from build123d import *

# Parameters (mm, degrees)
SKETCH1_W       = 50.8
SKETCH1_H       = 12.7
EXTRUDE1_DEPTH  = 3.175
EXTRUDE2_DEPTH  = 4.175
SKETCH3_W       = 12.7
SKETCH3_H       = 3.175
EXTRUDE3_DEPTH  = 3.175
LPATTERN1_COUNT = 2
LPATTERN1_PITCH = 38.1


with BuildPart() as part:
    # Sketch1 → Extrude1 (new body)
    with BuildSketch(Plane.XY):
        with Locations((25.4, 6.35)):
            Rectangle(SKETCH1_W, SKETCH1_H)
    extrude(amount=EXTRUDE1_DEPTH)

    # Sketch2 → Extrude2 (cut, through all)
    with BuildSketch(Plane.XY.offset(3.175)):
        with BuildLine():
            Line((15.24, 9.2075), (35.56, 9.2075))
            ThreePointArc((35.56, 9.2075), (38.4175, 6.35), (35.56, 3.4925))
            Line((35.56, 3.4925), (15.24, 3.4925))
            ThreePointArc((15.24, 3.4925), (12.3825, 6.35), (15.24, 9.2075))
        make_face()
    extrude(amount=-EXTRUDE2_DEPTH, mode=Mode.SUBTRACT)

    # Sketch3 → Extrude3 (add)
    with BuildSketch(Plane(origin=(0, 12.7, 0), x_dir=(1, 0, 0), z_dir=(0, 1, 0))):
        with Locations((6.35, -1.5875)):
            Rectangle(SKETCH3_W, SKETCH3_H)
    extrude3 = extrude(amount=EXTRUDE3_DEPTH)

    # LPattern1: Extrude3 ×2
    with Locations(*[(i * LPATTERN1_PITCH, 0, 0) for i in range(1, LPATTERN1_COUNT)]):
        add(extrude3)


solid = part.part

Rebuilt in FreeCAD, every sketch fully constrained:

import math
import FreeCAD as App
import Part
import Sketcher

V = App.Vector
Q = App.Units.Quantity


def add_polygon(sketch, points):
    """Adds a closed chain of lines whose ends are joined by coincident constraints."""
    first, n = sketch.GeometryCount, len(points)
    for a, b in zip(points, points[1:] + points[:1]):
        sketch.addGeometry(Part.LineSegment(App.Vector(*a, 0), App.Vector(*b, 0)), False)
    for i in range(n):
        sketch.addConstraint(Sketcher.Constraint("Coincident", first + i, 2, first + (i + 1) % n, 1))

doc = App.newDocument("Part")
body = doc.addObject("PartDesign::Body", "Body")

sketch1 = body.newObject("Sketcher::SketchObject", "Sketch")
sketch1.AttachmentSupport = (doc.getObject("XY_Plane"), [""])
sketch1.MapMode = "FlatFace"
add_polygon(sketch1, [(0, 12.7), (0, 0), (50.8, 0), (50.8, 12.7)])
sketch1.addConstraint(Sketcher.Constraint("Vertical", 0))
sketch1.addConstraint(Sketcher.Constraint("Horizontal", 1))
sketch1.addConstraint(Sketcher.Constraint("Vertical", 2))
sketch1.addConstraint(Sketcher.Constraint("Horizontal", 3))
sketch1.addConstraint(Sketcher.Constraint("Coincident", 0, 2, -1, 1))
sketch1.addConstraint(Sketcher.Constraint("DistanceX", 1, 1, 1, 2, Q("2 in")))
sketch1.addConstraint(Sketcher.Constraint("DistanceY", 0, 2, 0, 1, Q("0.5 in")))
pad1 = body.newObject("PartDesign::Pad", "Pad")
pad1.Profile = sketch1
pad1.Length = Q("0.125 in")

sketch2 = body.newObject("Sketcher::SketchObject", "Sketch001")
sketch2.AttachmentSupport = (doc.getObject("XY_Plane"), [""])
sketch2.MapMode = "FlatFace"
sketch2.AttachmentOffset = App.Placement(V(0, 0, 0.125 * 25.4), App.Rotation())
sketch2.addGeometry(Part.LineSegment(V(35.56, 9.2075, 0), V(15.24, 9.2075, 0)), False)
sketch2.addGeometry(Part.ArcOfCircle(Part.Circle(V(15.24, 6.35, 0), V(0, 0, 1), 2.8575), math.radians(90), math.radians(270)), False)
sketch2.addGeometry(Part.LineSegment(V(15.24, 3.4925, 0), V(35.56, 3.4925, 0)), False)
sketch2.addGeometry(Part.ArcOfCircle(Part.Circle(V(35.56, 6.35, 0), V(0, 0, 1), 2.8575), math.radians(-90), math.radians(90)), False)
sketch2.addConstraint(Sketcher.Constraint("Tangent", 0, 2, 1, 1))
sketch2.addConstraint(Sketcher.Constraint("Tangent", 1, 2, 2, 1))
sketch2.addConstraint(Sketcher.Constraint("Tangent", 2, 2, 3, 1))
sketch2.addConstraint(Sketcher.Constraint("Tangent", 3, 2, 0, 1))
sketch2.addConstraint(Sketcher.Constraint("Horizontal", 0))
sketch2.addConstraint(Sketcher.Constraint("Horizontal", 2))
sketch2.addConstraint(Sketcher.Constraint("DistanceX", 0, 2, 0, 1, Q("0.8 in")))
sketch2.addConstraint(Sketcher.Constraint("DistanceX", -1, 1, 1, 3, Q("0.6 in")))
sketch2.addConstraint(Sketcher.Constraint("Radius", 1, Q("0.1125 in")))
sketch2.addConstraint(Sketcher.Constraint("DistanceY", -1, 1, 1, 3, Q("0.25 in")))
pocket1 = body.newObject("PartDesign::Pocket", "Pocket")
pocket1.Profile = sketch2
pocket1.Type = "ThroughAll"

sketch3 = body.newObject("Sketcher::SketchObject", "Sketch002")
sketch3.AttachmentSupport = (doc.getObject("XZ_Plane"), [""])
sketch3.MapMode = "FlatFace"
sketch3.AttachmentOffset = App.Placement(V(0, 0, -0.5 * 25.4), App.Rotation())
add_polygon(sketch3, [(0, 0), (0, 3.175), (12.7, 3.175), (12.7, 0)])
sketch3.addConstraint(Sketcher.Constraint("Vertical", 0))
sketch3.addConstraint(Sketcher.Constraint("Horizontal", 1))
sketch3.addConstraint(Sketcher.Constraint("Vertical", 2))
sketch3.addConstraint(Sketcher.Constraint("Horizontal", 3))
sketch3.addConstraint(Sketcher.Constraint("Coincident", 3, 2, -1, 1))
sketch3.addConstraint(Sketcher.Constraint("DistanceX", 1, 1, 1, 2, Q("0.5 in")))
sketch3.addConstraint(Sketcher.Constraint("DistanceY", 0, 1, 0, 2, Q("0.125 in")))
pad2 = body.newObject("PartDesign::Pad", "Pad001")
pad2.Profile = sketch3
pad2.Length = Q("0.125 in")
pad2.Reversed = True
doc.recompute()

linearpattern = body.newObject("PartDesign::LinearPattern", "LinearPattern")
linearpattern.Originals = [pad2]
linearpattern.Direction = (doc.getObject("X_Axis"), [""])
linearpattern.Mode = "offset"
linearpattern.Offset = Q("1.5 in")
linearpattern.Occurrences = 2
body.Tip = linearpattern

doc.recompute()
